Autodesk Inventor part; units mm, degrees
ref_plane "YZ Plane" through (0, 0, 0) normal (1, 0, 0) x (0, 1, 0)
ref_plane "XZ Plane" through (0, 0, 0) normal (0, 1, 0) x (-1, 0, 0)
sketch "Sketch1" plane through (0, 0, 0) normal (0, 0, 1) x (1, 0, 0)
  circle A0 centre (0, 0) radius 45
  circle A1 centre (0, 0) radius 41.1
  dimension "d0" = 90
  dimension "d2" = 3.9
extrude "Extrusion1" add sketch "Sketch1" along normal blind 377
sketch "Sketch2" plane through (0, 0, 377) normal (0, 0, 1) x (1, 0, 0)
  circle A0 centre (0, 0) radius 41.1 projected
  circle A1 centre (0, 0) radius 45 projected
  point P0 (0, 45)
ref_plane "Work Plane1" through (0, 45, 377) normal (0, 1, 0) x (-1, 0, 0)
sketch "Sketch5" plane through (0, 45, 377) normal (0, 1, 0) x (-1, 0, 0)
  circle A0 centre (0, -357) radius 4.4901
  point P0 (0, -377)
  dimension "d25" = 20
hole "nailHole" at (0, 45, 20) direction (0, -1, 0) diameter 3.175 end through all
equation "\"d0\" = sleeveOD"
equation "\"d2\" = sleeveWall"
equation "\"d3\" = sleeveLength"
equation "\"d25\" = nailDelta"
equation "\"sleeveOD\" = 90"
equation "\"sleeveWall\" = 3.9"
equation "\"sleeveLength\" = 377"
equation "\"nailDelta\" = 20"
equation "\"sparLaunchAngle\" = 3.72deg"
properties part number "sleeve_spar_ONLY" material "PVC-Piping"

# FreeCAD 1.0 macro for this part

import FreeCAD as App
import Part
import Sketcher
Q = App.Units.Quantity

doc = App.newDocument("Part")
params = doc.addObject("Spreadsheet::Sheet", "Params")
for row, (alias, value) in enumerate([
    ("sketch1_diameter", "90 mm"),
    ("sketch1_diameter2", "82.2 mm"),
    ("pad1_length", "377 mm"),
    ("hole_diameter", "3.175 mm"),
], start=1):
    params.set(f"A{row}", alias)
    params.set(f"B{row}", "=" + value)
    params.setAlias(f"B{row}", alias)

body = doc.addObject("PartDesign::Body", "Body")

sketch1 = body.newObject("Sketcher::SketchObject", "Sketch")
sketch1.AttachmentSupport = (doc.getObject("XY_Plane"), [""])
sketch1.MapMode = "FlatFace"
sketch1.addGeometry(Part.Circle(App.Vector(0, 0, 0), App.Vector(0, 0, 1), 45), False)
sketch1.addGeometry(Part.Circle(App.Vector(0, 0, 0), App.Vector(0, 0, 1), 41), False)
sketch1.addConstraint(Sketcher.Constraint("Coincident", 0, 3, -1, 1))
sketch1.addConstraint(Sketcher.Constraint("Coincident", 1, 3, -1, 1))
sketch1.addConstraint(Sketcher.Constraint("Diameter", 0, Q("90 mm")))
sketch1.addConstraint(Sketcher.Constraint("Diameter", 1, Q("82.2 mm")))
sketch1.setExpression("Constraints[2]", "Params.sketch1_diameter")
sketch1.setExpression("Constraints[3]", "Params.sketch1_diameter2")
pad1 = body.newObject("PartDesign::Pad", "Pad")
pad1.Profile = sketch1
pad1.setExpression("Length", "Params.pad1_length")

sketch2 = body.newObject("Sketcher::SketchObject", "Sketch001")
sketch2.AttachmentSupport = (doc.getObject("XZ_Plane"), [""])
sketch2.MapMode = "FlatFace"
sketch2.AttachmentOffset = App.Placement(App.Vector(0, 0, -45), App.Rotation())
sketch2.addGeometry(Part.Circle(App.Vector(0, 20, 0), App.Vector(0, 0, 1), 1.6), False)
sketch2.addConstraint(Sketcher.Constraint("PointOnObject", 0, 3, -2))
sketch2.addConstraint(Sketcher.Constraint("Diameter", 0, Q("3.175 mm")))
sketch2.addConstraint(Sketcher.Constraint("DistanceY", -1, 1, 0, 3, Q("20 mm")))
doc.recompute()
hole = body.newObject("PartDesign::Hole", "Hole")
hole.Profile = sketch2
hole.ThreadType = "None"
hole.setExpression("Diameter", "Params.hole_diameter")
hole.DepthType = "ThroughAll"
hole.Reversed = True

doc.recompute()
